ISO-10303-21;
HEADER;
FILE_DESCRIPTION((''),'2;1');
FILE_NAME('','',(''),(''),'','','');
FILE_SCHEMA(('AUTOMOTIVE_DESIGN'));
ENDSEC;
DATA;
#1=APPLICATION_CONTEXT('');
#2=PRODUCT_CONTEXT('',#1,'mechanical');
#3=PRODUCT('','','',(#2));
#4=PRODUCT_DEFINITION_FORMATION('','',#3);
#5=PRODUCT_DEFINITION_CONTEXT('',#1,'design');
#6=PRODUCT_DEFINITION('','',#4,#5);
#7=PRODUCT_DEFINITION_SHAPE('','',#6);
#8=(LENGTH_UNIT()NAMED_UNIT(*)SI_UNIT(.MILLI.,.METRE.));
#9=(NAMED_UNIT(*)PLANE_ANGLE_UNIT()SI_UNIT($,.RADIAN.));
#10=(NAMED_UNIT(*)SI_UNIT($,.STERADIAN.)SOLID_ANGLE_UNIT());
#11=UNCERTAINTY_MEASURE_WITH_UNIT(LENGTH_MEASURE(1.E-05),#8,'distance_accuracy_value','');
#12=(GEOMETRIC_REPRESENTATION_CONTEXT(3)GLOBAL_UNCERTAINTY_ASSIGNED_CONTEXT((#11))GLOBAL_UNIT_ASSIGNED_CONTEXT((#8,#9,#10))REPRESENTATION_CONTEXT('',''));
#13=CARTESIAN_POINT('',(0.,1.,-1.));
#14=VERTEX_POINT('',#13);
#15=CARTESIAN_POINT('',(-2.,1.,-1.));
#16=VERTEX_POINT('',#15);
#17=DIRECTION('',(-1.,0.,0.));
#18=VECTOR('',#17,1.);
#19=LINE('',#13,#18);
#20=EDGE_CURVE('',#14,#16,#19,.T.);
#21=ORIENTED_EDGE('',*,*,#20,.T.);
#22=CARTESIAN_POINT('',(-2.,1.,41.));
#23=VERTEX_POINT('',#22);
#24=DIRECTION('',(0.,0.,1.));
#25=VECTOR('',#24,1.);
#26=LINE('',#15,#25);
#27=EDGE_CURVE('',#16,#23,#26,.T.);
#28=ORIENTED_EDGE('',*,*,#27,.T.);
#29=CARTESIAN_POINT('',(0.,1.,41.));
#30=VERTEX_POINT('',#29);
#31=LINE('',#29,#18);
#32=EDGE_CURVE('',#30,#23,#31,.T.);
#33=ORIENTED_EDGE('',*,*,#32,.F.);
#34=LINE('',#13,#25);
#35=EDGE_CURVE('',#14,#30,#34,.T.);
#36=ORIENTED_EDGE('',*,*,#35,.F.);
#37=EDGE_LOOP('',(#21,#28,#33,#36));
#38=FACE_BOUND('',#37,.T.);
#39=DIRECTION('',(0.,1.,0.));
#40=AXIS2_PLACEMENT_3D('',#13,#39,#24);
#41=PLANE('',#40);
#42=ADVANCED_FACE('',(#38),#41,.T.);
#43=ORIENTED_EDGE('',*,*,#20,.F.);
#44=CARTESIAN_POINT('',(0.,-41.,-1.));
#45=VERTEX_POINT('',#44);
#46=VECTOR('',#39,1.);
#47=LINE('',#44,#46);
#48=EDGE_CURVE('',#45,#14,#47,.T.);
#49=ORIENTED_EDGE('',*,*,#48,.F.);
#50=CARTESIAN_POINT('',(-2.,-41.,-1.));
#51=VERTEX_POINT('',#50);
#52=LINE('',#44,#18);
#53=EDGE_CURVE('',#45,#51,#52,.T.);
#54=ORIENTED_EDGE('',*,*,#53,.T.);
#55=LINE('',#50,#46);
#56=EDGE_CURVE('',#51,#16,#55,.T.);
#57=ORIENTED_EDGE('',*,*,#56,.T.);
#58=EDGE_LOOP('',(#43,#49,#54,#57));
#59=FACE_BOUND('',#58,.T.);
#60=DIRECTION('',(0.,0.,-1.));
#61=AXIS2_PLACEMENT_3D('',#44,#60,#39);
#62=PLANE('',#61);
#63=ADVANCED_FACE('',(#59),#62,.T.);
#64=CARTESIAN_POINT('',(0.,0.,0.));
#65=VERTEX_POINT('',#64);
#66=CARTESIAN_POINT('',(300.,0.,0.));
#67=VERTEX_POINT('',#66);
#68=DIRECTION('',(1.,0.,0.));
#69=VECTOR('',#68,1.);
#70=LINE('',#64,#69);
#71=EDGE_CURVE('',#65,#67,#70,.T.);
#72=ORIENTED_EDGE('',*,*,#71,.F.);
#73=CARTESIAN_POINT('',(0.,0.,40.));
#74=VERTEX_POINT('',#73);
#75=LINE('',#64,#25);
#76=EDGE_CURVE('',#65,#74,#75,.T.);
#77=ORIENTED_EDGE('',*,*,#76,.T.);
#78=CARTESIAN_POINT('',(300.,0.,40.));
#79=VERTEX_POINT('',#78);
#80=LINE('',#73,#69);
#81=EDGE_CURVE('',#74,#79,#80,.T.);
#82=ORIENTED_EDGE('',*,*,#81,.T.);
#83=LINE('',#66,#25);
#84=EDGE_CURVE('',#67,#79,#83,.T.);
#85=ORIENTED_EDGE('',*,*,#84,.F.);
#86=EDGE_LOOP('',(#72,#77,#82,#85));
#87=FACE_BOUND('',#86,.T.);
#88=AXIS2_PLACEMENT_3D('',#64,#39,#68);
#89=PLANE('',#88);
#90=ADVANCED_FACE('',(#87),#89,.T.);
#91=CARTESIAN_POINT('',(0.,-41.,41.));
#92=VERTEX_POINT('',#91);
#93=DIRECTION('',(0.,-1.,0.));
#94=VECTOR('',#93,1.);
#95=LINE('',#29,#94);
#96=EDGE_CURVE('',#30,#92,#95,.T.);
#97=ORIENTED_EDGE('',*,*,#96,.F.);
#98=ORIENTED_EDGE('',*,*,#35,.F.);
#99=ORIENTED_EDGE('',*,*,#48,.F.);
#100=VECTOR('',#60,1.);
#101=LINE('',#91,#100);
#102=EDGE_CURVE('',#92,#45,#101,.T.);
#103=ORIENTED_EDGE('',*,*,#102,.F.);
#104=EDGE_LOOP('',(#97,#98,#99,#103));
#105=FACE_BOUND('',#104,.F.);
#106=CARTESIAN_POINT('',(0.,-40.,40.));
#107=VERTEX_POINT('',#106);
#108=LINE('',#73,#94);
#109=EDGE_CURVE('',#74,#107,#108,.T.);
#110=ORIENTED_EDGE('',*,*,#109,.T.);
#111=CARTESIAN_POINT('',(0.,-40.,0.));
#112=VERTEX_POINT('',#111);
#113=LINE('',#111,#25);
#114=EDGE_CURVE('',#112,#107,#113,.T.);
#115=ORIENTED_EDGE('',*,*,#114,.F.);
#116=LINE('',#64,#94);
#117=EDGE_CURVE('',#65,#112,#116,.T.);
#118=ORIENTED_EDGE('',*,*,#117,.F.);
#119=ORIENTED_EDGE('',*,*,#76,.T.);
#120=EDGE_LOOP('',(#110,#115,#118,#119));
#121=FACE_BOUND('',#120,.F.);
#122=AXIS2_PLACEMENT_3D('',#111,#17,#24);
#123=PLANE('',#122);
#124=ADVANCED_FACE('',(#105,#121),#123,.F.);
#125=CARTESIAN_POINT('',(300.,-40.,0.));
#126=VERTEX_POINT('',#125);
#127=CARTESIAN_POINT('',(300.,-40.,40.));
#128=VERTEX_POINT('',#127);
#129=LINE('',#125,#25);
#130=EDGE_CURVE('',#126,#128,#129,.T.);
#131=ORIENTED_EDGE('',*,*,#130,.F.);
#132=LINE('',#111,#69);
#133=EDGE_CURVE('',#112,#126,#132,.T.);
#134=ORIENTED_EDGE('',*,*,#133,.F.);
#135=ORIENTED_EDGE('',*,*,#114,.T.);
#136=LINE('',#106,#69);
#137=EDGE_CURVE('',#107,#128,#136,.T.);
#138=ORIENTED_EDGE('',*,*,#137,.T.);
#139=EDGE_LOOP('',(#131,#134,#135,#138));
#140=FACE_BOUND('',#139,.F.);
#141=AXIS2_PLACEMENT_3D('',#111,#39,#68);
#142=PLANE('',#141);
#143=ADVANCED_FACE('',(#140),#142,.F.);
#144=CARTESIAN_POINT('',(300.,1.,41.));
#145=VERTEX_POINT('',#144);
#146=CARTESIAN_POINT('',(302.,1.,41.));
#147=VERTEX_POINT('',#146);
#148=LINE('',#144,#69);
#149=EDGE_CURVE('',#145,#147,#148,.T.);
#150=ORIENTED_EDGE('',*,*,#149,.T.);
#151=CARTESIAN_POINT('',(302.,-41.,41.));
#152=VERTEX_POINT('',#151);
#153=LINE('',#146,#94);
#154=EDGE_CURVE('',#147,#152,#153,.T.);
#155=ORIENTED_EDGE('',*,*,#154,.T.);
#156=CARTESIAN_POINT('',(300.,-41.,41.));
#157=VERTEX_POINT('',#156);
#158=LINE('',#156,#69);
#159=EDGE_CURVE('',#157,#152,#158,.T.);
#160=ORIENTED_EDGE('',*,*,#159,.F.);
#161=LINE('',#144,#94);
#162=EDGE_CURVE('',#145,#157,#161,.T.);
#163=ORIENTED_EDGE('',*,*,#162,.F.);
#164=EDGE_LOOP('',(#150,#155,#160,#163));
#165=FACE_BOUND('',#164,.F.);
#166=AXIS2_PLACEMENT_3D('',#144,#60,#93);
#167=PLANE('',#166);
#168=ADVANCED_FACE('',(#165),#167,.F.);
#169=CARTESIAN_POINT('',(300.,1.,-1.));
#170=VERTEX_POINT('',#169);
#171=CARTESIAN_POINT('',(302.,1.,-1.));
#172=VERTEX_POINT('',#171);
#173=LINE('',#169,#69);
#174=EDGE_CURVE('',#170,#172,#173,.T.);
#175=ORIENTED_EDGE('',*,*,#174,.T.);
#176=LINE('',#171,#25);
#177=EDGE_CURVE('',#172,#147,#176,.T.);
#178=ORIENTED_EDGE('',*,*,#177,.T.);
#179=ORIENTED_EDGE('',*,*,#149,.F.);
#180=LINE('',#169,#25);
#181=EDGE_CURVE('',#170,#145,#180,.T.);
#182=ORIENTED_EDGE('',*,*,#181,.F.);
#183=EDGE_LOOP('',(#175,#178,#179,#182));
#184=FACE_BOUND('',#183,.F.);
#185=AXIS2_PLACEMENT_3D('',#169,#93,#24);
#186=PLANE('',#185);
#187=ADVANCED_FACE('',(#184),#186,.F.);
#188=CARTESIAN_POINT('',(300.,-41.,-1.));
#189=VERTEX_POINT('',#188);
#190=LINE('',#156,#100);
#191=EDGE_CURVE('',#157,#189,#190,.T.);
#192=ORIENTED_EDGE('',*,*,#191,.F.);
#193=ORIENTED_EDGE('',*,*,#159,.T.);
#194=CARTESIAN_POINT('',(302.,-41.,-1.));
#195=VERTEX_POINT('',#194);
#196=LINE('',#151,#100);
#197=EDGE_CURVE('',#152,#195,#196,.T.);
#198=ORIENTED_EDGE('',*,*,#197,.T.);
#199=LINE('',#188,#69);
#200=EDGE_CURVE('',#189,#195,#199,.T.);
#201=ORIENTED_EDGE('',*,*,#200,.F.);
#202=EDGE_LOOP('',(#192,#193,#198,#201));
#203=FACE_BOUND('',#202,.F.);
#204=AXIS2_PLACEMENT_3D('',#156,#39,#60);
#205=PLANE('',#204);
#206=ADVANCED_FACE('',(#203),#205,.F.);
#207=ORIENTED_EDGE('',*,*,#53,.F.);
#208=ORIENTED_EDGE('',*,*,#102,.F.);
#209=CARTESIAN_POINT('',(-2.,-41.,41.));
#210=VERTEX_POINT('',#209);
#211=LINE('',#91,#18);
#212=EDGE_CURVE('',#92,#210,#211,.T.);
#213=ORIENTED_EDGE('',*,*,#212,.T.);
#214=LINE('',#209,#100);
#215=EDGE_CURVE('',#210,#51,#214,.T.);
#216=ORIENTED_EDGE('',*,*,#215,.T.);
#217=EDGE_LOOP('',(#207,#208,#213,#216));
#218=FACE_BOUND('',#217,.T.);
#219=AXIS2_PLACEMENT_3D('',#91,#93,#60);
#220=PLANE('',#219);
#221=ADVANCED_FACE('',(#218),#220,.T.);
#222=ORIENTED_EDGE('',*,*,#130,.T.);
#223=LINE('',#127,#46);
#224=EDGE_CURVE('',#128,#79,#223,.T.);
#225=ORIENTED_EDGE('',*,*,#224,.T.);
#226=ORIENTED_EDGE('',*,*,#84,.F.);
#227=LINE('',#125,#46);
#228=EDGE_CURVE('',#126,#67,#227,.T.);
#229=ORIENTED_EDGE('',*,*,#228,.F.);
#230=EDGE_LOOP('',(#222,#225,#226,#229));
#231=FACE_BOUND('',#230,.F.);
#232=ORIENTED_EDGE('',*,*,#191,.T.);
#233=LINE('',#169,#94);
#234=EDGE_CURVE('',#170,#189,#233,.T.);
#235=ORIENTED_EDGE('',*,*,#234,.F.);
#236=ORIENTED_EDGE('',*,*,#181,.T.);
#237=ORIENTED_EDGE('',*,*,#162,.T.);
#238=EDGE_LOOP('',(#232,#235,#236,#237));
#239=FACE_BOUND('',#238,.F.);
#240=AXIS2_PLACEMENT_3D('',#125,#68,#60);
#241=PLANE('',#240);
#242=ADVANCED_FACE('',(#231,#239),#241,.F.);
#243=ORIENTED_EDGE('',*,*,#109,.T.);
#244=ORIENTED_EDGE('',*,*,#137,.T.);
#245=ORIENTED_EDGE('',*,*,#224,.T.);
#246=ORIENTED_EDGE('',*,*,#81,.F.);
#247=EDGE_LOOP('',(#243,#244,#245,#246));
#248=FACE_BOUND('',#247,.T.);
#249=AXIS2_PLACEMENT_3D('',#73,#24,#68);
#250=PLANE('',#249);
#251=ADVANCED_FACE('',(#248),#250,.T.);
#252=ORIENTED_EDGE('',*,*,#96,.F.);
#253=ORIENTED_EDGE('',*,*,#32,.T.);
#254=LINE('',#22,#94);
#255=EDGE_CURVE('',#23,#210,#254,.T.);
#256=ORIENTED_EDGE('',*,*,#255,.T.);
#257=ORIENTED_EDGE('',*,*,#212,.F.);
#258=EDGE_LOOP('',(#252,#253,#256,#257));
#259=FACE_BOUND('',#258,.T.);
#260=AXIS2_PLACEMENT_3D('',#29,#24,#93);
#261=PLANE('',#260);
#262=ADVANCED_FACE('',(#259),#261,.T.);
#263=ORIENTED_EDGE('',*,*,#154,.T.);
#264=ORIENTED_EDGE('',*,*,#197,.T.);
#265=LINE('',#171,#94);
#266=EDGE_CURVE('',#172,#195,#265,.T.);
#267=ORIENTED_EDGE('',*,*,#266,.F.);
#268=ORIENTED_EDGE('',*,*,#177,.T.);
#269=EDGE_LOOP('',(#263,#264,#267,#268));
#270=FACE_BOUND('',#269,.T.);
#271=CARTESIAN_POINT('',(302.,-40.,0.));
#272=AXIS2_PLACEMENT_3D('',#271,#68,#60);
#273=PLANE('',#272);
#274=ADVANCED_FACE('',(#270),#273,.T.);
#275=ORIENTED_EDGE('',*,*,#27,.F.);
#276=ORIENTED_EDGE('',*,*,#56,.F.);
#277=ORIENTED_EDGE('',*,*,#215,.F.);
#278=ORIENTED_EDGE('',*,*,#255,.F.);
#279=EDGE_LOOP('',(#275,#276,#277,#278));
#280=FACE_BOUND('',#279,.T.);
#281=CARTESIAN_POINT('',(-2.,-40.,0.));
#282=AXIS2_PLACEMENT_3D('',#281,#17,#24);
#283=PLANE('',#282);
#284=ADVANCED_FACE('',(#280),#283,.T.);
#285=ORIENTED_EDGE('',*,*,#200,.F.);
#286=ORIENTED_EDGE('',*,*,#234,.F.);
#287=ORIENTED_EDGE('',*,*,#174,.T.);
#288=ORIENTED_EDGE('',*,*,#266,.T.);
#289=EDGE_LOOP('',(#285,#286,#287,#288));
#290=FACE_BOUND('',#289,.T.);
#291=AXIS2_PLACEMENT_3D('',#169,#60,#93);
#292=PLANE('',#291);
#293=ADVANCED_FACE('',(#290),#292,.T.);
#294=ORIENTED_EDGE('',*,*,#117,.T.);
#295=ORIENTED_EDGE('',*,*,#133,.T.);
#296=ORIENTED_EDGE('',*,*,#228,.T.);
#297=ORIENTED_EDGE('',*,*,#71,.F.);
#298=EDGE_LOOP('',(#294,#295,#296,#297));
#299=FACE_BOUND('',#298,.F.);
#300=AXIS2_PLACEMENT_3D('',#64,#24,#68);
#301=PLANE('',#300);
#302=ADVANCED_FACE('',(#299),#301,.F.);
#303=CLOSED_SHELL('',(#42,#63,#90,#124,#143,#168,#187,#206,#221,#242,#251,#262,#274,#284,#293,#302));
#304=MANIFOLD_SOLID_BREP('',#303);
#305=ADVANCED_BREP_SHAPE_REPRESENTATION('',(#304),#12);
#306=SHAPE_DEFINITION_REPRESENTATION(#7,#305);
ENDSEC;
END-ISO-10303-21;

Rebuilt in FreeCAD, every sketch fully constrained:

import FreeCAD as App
import Part
import Sketcher
Q = App.Units.Quantity

doc = App.newDocument("Part")
body = doc.addObject("PartDesign::Body", "Body")

# Sketch on XY plane
sketch1 = body.newObject("Sketcher::SketchObject", "Sketch")
sketch1.AttachmentSupport = (doc.getObject("XY_Plane"), [""])
sketch1.MapMode = "FlatFace"
sketch1.addGeometry([
    Part.LineSegment(App.Vector(300, 0, 0), App.Vector(0, 0, 0)),
    Part.LineSegment(App.Vector(0, 0, 0), App.Vector(0, -40, 0)),
    Part.LineSegment(App.Vector(0, -40, 0), App.Vector(300, -40, 0)),
    Part.LineSegment(App.Vector(300, -40, 0), App.Vector(300, 0, 0)),
], False)
sketch1.addConstraint([
    Sketcher.Constraint("Coincident", 0, 2, 1, 1),
    Sketcher.Constraint("Coincident", 1, 2, 2, 1),
    Sketcher.Constraint("Coincident", 2, 2, 3, 1),
    Sketcher.Constraint("Coincident", 3, 2, 0, 1),
    Sketcher.Constraint("Horizontal", 0),
    Sketcher.Constraint("Vertical", 1),
    Sketcher.Constraint("Horizontal", 2),
    Sketcher.Constraint("Vertical", 3),
    Sketcher.Constraint("Coincident", 0, 2, -1, 1),
    Sketcher.Constraint("DistanceX", 0, 2, 0, 1, Q("300 mm")),
    Sketcher.Constraint("DistanceY", 1, 2, 1, 1, Q("40 mm")),
])
pad1 = body.newObject("PartDesign::Pad", "Pad")
pad1.Profile = sketch1
pad1.Length = 40

# Sketch on YZ plane
sketch2 = body.newObject("Sketcher::SketchObject", "Sketch001")
sketch2.AttachmentSupport = (doc.getObject("YZ_Plane"), [""])
sketch2.MapMode = "FlatFace"
sketch2.AttachmentOffset = App.Placement(App.Vector(0, 0, 300), App.Rotation())
sketch2.addGeometry([
    Part.LineSegment(App.Vector(-41, -1, 0), App.Vector(1, -1, 0)),
    Part.LineSegment(App.Vector(1, -1, 0), App.Vector(1, 41, 0)),
    Part.LineSegment(App.Vector(1, 41, 0), App.Vector(-41, 41, 0)),
    Part.LineSegment(App.Vector(-41, 41, 0), App.Vector(-41, -1, 0)),
], False)
sketch2.addConstraint([
    Sketcher.Constraint("Coincident", 0, 2, 1, 1),
    Sketcher.Constraint("Coincident", 1, 2, 2, 1),
    Sketcher.Constraint("Coincident", 2, 2, 3, 1),
    Sketcher.Constraint("Coincident", 3, 2, 0, 1),
    Sketcher.Constraint("Horizontal", 0),
    Sketcher.Constraint("Vertical", 1),
    Sketcher.Constraint("Horizontal", 2),
    Sketcher.Constraint("Vertical", 3),
    Sketcher.Constraint("Equal", 2, 1),
    Sketcher.Constraint("DistanceX", 0, 1, 0, 2, Q("42 mm")),
    Sketcher.Constraint("DistanceX", -1, 1, 0, 2, Q("1 mm")),
    Sketcher.Constraint("DistanceY", 0, 2, -1, 1, Q("1 mm")),
])
pad2 = body.newObject("PartDesign::Pad", "Pad001")
pad2.Profile = sketch2
pad2.Length = 2

# Sketch on YZ plane
sketch3 = body.newObject("Sketcher::SketchObject", "Sketch002")
sketch3.AttachmentSupport = (doc.getObject("YZ_Plane"), [""])
sketch3.MapMode = "FlatFace"
sketch3.addGeometry([
    Part.LineSegment(App.Vector(1, 41, 0), App.Vector(1, -1, 0)),
    Part.LineSegment(App.Vector(1, -1, 0), App.Vector(-41, -1, 0)),
    Part.LineSegment(App.Vector(-41, -1, 0), App.Vector(-41, 41, 0)),
    Part.LineSegment(App.Vector(-41, 41, 0), App.Vector(1, 41, 0)),
], False)
sketch3.addConstraint([
    Sketcher.Constraint("Coincident", 0, 2, 1, 1),
    Sketcher.Constraint("Coincident", 1, 2, 2, 1),
    Sketcher.Constraint("Coincident", 2, 2, 3, 1),
    Sketcher.Constraint("Coincident", 3, 2, 0, 1),
    Sketcher.Constraint("Vertical", 0),
    Sketcher.Constraint("Horizontal", 1),
    Sketcher.Constraint("Vertical", 2),
    Sketcher.Constraint("Horizontal", 3),
    Sketcher.Constraint("Equal", 3, 0),
    Sketcher.Constraint("DistanceX", 1, 2, 1, 1, Q("42 mm")),
    Sketcher.Constraint("DistanceX", -1, 1, 0, 2, Q("1 mm")),
    Sketcher.Constraint("DistanceY", 0, 2, -1, 1, Q("1 mm")),
])
pad3 = body.newObject("PartDesign::Pad", "Pad002")
pad3.Profile = sketch3
pad3.Length = 2
pad3.Reversed = True

doc.recompute()
